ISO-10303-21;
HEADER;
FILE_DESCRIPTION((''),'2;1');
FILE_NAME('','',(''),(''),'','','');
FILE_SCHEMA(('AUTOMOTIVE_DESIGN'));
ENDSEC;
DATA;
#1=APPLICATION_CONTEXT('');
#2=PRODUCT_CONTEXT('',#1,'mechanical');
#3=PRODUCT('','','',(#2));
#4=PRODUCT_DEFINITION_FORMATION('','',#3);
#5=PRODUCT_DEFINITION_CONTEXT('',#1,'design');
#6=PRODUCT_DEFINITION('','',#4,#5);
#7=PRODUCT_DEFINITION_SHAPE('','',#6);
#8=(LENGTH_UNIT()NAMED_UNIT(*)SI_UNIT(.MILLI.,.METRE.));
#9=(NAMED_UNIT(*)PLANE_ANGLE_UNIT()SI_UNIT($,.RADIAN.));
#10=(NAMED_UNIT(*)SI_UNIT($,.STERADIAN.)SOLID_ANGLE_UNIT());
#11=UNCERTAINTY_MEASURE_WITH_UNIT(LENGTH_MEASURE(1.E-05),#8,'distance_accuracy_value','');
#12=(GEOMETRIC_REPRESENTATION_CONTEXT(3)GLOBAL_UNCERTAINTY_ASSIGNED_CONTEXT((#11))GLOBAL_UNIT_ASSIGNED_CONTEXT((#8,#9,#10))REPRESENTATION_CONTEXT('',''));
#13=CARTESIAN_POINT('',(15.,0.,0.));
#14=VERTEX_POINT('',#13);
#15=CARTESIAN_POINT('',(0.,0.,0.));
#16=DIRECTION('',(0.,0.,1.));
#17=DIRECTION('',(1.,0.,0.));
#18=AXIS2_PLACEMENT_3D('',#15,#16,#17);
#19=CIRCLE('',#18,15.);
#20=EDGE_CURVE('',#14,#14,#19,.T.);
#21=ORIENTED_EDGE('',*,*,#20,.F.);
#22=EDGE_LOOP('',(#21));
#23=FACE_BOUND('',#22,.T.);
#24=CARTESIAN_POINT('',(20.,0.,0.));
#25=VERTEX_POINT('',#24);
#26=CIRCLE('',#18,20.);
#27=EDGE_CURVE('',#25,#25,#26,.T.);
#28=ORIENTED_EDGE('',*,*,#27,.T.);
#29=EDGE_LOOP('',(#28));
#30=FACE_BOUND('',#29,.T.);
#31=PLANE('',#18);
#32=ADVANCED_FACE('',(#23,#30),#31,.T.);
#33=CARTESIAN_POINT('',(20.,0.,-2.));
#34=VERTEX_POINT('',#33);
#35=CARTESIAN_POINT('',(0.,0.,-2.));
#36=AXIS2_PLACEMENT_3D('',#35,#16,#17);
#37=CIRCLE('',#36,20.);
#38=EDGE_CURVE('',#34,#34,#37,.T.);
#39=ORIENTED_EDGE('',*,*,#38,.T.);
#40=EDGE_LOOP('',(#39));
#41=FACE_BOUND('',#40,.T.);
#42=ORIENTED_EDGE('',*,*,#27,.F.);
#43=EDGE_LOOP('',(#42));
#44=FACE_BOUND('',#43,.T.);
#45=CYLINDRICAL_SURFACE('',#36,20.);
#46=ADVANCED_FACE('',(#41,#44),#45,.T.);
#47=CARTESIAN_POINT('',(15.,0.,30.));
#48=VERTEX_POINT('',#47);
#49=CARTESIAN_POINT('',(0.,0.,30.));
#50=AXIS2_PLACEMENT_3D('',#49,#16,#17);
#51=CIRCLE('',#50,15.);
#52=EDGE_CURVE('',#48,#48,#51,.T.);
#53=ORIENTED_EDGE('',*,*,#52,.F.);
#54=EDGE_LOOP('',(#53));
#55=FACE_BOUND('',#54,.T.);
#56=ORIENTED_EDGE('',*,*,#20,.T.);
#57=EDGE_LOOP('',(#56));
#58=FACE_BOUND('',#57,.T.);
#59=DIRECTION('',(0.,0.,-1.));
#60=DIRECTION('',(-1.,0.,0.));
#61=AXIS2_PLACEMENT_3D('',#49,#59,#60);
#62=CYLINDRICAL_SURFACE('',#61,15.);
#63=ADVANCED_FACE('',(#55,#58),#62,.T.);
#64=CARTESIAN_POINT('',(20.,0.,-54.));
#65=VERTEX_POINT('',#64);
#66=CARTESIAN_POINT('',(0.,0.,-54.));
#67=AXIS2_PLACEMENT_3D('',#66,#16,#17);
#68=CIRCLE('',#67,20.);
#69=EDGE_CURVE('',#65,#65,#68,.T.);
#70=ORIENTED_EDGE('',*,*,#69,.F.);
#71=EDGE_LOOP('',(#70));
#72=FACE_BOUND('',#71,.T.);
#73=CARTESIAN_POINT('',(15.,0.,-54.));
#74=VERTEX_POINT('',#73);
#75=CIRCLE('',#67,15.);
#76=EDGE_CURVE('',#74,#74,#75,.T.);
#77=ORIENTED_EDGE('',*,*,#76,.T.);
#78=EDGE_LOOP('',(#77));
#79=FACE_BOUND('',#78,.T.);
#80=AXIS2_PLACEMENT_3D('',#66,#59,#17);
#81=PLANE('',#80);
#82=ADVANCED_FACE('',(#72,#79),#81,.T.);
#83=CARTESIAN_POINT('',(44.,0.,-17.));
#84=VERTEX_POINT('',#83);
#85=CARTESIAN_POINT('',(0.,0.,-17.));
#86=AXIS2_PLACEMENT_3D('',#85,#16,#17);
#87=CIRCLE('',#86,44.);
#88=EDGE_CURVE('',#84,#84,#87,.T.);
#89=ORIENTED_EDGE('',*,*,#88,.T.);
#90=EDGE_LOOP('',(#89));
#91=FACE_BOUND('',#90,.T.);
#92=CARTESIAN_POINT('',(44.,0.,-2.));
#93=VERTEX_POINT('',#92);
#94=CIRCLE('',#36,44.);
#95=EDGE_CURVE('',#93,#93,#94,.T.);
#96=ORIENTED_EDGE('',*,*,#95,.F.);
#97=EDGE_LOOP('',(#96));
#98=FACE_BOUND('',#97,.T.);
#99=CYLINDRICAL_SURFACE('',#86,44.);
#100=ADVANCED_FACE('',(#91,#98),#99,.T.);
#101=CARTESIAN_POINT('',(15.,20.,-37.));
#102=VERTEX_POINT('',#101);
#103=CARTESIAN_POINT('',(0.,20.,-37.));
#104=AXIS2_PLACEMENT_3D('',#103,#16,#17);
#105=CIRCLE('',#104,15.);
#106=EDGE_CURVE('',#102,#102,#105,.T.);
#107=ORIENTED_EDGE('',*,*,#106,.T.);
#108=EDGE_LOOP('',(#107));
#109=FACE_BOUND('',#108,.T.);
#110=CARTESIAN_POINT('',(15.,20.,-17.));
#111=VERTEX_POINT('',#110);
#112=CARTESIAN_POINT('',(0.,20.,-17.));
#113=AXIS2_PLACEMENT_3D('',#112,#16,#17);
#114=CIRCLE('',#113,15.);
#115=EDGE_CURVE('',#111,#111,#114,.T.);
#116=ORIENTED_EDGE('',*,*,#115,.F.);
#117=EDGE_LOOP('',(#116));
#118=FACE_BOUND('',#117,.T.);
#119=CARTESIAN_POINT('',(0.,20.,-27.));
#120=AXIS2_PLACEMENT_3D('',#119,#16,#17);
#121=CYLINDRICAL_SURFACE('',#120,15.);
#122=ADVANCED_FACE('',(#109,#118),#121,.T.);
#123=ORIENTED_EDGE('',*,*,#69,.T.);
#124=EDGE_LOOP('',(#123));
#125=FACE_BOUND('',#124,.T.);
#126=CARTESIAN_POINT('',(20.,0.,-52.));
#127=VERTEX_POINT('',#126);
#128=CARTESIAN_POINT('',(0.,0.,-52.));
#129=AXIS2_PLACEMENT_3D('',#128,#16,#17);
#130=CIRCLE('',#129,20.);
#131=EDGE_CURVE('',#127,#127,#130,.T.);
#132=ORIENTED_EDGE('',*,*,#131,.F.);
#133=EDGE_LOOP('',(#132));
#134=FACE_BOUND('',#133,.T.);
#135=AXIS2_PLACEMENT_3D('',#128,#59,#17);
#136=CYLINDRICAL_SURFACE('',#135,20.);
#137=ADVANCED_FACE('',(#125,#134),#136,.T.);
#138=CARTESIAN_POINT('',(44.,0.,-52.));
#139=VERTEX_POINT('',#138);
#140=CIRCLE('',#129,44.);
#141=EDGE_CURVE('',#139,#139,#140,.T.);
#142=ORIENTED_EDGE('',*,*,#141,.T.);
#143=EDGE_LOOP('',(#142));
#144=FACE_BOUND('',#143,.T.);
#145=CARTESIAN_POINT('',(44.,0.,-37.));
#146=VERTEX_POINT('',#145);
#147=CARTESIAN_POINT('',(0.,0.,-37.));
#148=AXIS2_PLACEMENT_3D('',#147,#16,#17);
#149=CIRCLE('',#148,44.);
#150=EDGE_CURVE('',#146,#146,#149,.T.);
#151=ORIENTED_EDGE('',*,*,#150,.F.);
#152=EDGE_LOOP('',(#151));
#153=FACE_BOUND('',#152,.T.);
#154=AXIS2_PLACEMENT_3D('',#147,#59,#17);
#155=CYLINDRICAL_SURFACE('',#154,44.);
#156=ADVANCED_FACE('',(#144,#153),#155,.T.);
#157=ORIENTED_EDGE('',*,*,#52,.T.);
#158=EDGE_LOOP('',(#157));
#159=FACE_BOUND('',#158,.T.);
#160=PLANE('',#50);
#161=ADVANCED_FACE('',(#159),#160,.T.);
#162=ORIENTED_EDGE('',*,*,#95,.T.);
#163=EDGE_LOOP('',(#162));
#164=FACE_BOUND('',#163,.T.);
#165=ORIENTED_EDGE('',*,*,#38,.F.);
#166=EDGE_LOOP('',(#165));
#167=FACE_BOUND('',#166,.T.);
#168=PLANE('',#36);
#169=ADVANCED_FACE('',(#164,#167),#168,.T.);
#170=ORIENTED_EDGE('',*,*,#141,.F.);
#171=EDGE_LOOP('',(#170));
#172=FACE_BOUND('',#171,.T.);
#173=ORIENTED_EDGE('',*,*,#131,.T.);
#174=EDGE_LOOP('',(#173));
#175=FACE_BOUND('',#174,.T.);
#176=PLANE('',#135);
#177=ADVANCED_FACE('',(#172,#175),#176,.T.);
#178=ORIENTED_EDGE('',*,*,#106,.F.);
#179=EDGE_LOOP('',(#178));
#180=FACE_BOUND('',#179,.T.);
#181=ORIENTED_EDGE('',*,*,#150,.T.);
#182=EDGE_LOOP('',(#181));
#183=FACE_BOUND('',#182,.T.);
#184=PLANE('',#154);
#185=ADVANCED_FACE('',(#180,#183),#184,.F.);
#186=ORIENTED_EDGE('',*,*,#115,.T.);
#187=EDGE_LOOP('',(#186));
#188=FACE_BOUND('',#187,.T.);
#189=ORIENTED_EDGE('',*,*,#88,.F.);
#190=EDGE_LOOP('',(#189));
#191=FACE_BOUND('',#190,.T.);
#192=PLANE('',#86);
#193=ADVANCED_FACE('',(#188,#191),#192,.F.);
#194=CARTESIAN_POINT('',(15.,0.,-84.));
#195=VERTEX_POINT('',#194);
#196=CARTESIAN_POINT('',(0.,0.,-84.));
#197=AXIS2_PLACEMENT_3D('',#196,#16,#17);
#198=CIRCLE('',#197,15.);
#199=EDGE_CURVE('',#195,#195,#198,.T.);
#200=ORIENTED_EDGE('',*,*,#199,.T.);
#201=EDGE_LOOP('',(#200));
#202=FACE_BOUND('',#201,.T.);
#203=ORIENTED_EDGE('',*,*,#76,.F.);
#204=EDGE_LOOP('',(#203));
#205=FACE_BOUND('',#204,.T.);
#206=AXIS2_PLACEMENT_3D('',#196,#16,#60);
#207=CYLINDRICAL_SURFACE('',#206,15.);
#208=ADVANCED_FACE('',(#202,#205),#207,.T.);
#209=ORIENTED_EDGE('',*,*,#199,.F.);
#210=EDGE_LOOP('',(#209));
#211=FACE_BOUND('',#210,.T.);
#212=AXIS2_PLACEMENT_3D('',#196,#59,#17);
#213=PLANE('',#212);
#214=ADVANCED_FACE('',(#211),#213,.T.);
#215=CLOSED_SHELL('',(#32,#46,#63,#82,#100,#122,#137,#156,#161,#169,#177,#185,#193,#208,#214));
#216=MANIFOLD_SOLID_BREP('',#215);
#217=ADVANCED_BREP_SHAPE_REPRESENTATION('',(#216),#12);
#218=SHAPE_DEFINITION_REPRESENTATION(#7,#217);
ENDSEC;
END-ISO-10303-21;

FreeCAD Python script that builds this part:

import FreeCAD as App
import Part
import Sketcher

V = App.Vector

doc = App.newDocument("Part")
params = doc.addObject("Spreadsheet::Sheet", "Params")
for row, (alias, value) in enumerate([
    ("sketch1_diameter", "30 mm"),
    ("pad1_length", "30 mm"),
    ("sketch2_diameter", "40 mm"),
    ("pad2_length", "2 mm"),
    ("sketch3_diameter", "88 mm"),
    ("pad3_length", "15 mm"),
    ("sketch4_diameter", "30 mm"),
    ("pad4_length", "10 mm"),
], start=1):
    params.set(f"A{row}", alias)
    params.set(f"B{row}", "=" + value)
    params.setAlias(f"B{row}", alias)

body = doc.addObject("PartDesign::Body", "Body")

sketch1 = body.newObject("Sketcher::SketchObject", "Sketch")
sketch1.AttachmentSupport = (doc.getObject("XY_Plane"), [""])
sketch1.MapMode = "FlatFace"
sketch1.addGeometry(Part.Circle(V(0, 0, 0), V(0, 0, 1), 15), False)
sketch1.addConstraint([
    Sketcher.Constraint("Coincident", 0, 3, -1, 1),
    Sketcher.Constraint("Diameter", 0, 30.0),
])
sketch1.setExpression("Constraints[1]", "Params.sketch1_diameter")
pad1 = body.newObject("PartDesign::Pad", "Pad")
pad1.Profile = sketch1
pad1.setExpression("Length", "Params.pad1_length")

sketch2 = body.newObject("Sketcher::SketchObject", "Sketch001")
sketch2.AttachmentSupport = (doc.getObject("XY_Plane"), [""])
sketch2.MapMode = "FlatFace"
sketch2.addGeometry(Part.Circle(V(0, 0, 0), V(0, 0, 1), 20), False)
sketch2.addConstraint([
    Sketcher.Constraint("Coincident", 0, 3, -1, 1),
    Sketcher.Constraint("Diameter", 0, 40.0),
])
sketch2.setExpression("Constraints[1]", "Params.sketch2_diameter")
pad2 = body.newObject("PartDesign::Pad", "Pad001")
pad2.Profile = sketch2
pad2.setExpression("Length", "Params.pad2_length")
pad2.Reversed = True

sketch3 = body.newObject("Sketcher::SketchObject", "Sketch002")
sketch3.AttachmentSupport = (doc.getObject("XY_Plane"), [""])
sketch3.MapMode = "FlatFace"
sketch3.AttachmentOffset = App.Placement(V(0, 0, -2), App.Rotation())
sketch3.addGeometry(Part.Circle(V(0, 0, 0), V(0, 0, 1), 44), False)
sketch3.addConstraint([
    Sketcher.Constraint("Coincident", 0, 3, -1, 1),
    Sketcher.Constraint("Diameter", 0, 88.0),
])
sketch3.setExpression("Constraints[1]", "Params.sketch3_diameter")
pad3 = body.newObject("PartDesign::Pad", "Pad002")
pad3.Profile = sketch3
pad3.setExpression("Length", "Params.pad3_length")
pad3.Reversed = True

sketch4 = body.newObject("Sketcher::SketchObject", "Sketch003")
sketch4.AttachmentSupport = (doc.getObject("XY_Plane"), [""])
sketch4.MapMode = "FlatFace"
sketch4.AttachmentOffset = App.Placement(V(0, 0, -17), App.Rotation())
sketch4.addGeometry(Part.Circle(V(0, 20, 0), V(0, 0, 1), 15), False)
sketch4.addConstraint([
    Sketcher.Constraint("PointOnObject", 0, 3, -2),
    Sketcher.Constraint("Diameter", 0, 30.0),
    Sketcher.Constraint("DistanceY", -1, 1, 0, 3, 20.0),
])
sketch4.setExpression("Constraints[1]", "Params.sketch4_diameter")
pad4 = body.newObject("PartDesign::Pad", "Pad003")
pad4.Profile = sketch4
pad4.setExpression("Length", "Params.pad4_length")
pad4.Reversed = True
body2 = doc.addObject("PartDesign::Body", "Body001")
doc.recompute()

body2.BaseFeature = body
doc.recompute()

mirroring = doc.addObject("Part::Mirroring", "Mirroring")
mirroring.Source = body
mirroring.Base = V(0, 20, -27)
mirroring.Normal = V(0, 0, 1)
body3 = doc.addObject("PartDesign::Body", "Body002")
body3.BaseFeature = mirroring
boolean = body2.newObject("PartDesign::Boolean", "Boolean")
boolean.Type = "Fuse"
boolean.addObjects([body3])
doc.recompute()
mirroring.Visibility = False

doc.recompute()
